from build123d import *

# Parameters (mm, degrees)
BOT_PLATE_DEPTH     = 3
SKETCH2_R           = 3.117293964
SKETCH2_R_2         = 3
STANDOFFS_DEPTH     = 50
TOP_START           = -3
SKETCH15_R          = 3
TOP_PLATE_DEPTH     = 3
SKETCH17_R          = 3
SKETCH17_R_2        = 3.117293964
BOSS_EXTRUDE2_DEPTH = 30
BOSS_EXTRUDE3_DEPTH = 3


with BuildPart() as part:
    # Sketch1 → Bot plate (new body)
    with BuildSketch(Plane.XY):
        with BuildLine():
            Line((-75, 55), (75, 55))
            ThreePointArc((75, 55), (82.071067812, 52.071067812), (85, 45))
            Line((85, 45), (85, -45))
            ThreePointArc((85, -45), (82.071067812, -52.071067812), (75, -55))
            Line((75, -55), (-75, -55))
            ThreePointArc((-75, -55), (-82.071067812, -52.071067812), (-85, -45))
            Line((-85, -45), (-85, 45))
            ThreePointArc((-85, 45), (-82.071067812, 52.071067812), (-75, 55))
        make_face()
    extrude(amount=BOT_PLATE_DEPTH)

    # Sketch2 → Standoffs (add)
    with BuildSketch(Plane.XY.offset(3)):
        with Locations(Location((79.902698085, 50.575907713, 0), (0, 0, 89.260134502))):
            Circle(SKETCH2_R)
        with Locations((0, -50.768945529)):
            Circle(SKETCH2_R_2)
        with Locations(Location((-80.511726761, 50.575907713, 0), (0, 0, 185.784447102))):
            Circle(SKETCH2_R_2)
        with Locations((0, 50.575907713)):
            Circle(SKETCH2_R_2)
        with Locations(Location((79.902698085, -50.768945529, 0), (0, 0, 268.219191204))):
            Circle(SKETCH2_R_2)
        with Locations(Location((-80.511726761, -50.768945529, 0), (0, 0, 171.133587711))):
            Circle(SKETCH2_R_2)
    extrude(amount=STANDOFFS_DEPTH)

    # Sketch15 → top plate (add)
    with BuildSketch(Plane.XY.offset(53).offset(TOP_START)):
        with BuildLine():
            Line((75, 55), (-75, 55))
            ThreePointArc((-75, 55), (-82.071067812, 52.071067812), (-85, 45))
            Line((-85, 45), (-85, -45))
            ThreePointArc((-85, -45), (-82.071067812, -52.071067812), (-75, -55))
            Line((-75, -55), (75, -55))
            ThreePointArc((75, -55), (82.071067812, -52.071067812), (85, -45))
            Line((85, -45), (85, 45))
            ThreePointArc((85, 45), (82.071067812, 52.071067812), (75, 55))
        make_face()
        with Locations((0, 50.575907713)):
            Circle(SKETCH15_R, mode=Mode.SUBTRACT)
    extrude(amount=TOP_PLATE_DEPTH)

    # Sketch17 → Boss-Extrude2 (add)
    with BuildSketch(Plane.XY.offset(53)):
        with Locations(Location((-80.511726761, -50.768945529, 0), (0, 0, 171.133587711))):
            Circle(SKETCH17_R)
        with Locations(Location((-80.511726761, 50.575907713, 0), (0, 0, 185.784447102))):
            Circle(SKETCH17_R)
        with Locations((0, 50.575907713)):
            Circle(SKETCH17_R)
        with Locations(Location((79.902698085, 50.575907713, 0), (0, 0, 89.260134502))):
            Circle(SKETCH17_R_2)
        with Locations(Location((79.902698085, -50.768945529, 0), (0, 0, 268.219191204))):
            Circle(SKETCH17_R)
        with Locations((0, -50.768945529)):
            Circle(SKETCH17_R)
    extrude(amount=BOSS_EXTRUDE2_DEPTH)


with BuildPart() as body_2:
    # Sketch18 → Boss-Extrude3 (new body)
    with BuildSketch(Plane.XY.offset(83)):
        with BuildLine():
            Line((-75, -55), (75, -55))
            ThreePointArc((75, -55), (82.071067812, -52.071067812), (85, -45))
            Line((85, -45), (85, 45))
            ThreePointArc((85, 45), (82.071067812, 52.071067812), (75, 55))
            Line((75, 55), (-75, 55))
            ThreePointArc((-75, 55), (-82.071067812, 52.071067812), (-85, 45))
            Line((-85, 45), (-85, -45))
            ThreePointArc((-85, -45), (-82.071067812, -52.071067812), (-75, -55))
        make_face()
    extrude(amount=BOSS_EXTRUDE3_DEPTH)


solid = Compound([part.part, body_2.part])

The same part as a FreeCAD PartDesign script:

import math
import FreeCAD as App
import Part
import Sketcher

V = App.Vector

doc = App.newDocument("Part")
body = doc.addObject("PartDesign::Body", "Body")

sketch1 = body.newObject("Sketcher::SketchObject", "Sketch")
sketch1.AttachmentSupport = (doc.getObject("XY_Plane"), [""])
sketch1.MapMode = "FlatFace"
sketch1.addGeometry(Part.LineSegment(V(75, 55, 0), V(-75, 55, 0)), False)
sketch1.addGeometry(Part.ArcOfCircle(Part.Circle(V(-75, 45, 0), V(0, 0, 1), 10), math.radians(90), math.radians(180)), False)
sketch1.addGeometry(Part.LineSegment(V(-85, 45, 0), V(-85, -45, 0)), False)
sketch1.addGeometry(Part.ArcOfCircle(Part.Circle(V(-75, -45, 0), V(0, 0, 1), 10), math.radians(180), math.radians(270)), False)
sketch1.addGeometry(Part.LineSegment(V(-75, -55, 0), V(75, -55, 0)), False)
sketch1.addGeometry(Part.ArcOfCircle(Part.Circle(V(75, -45, 0), V(0, 0, 1), 10), math.radians(-90), math.radians(0)), False)
sketch1.addGeometry(Part.LineSegment(V(85, -45, 0), V(85, 45, 0)), False)
sketch1.addGeometry(Part.ArcOfCircle(Part.Circle(V(75, 45, 0), V(0, 0, 1), 10), math.radians(0), math.radians(90)), False)
sketch1.addConstraint(Sketcher.Constraint("Tangent", 0, 2, 1, 1))
sketch1.addConstraint(Sketcher.Constraint("Tangent", 1, 2, 2, 1))
sketch1.addConstraint(Sketcher.Constraint("Tangent", 2, 2, 3, 1))
sketch1.addConstraint(Sketcher.Constraint("Tangent", 3, 2, 4, 1))
sketch1.addConstraint(Sketcher.Constraint("Tangent", 4, 2, 5, 1))
sketch1.addConstraint(Sketcher.Constraint("Tangent", 5, 2, 6, 1))
sketch1.addConstraint(Sketcher.Constraint("Tangent", 6, 2, 7, 1))
sketch1.addConstraint(Sketcher.Constraint("Tangent", 7, 2, 0, 1))
sketch1.addConstraint(Sketcher.Constraint("Horizontal", 0))
sketch1.addConstraint(Sketcher.Constraint("Vertical", 2))
sketch1.addConstraint(Sketcher.Constraint("Horizontal", 4))
sketch1.addConstraint(Sketcher.Constraint("Vertical", 6))
sketch1.addConstraint(Sketcher.Constraint("Equal", 1, 3))
sketch1.addConstraint(Sketcher.Constraint("Equal", 3, 5))
sketch1.addConstraint(Sketcher.Constraint("Equal", 5, 7))
sketch1.addConstraint(Sketcher.Constraint("Symmetric", 1, 3, 5, 3, -1, 1))
sketch1.addConstraint(Sketcher.Constraint("Radius", 1, 10.0))
sketch1.addConstraint(Sketcher.Constraint("DistanceX", 0, 2, 0, 1, 150.0))
sketch1.addConstraint(Sketcher.Constraint("DistanceY", 2, 2, 2, 1, 90.0))
pad1 = body.newObject("PartDesign::Pad", "Pad")
pad1.Profile = sketch1
pad1.Length = 3

sketch2 = body.newObject("Sketcher::SketchObject", "Sketch001")
sketch2.AttachmentSupport = (doc.getObject("XY_Plane"), [""])
sketch2.MapMode = "FlatFace"
sketch2.AttachmentOffset = App.Placement(V(0, 0, 3), App.Rotation())
sketch2.addGeometry(Part.Circle(V(79.9, 50.6, 0), V(0, 0, 1), 3.1), False)
sketch2.addGeometry(Part.Circle(V(0, -50.8, 0), V(0, 0, 1), 3), False)
sketch2.addGeometry(Part.Circle(V(-80.5, 50.6, 0), V(0, 0, 1), 3), False)
sketch2.addGeometry(Part.Circle(V(0, 50.6, 0), V(0, 0, 1), 3), False)
sketch2.addGeometry(Part.Circle(V(79.9, -50.8, 0), V(0, 0, 1), 3), False)
sketch2.addGeometry(Part.Circle(V(-80.5, -50.8, 0), V(0, 0, 1), 3), False)
sketch2.addConstraint(Sketcher.Constraint("Equal", 1, 2))
sketch2.addConstraint(Sketcher.Constraint("Equal", 2, 3))
sketch2.addConstraint(Sketcher.Constraint("Equal", 3, 4))
sketch2.addConstraint(Sketcher.Constraint("Equal", 4, 5))
sketch2.addConstraint(Sketcher.Constraint("PointOnObject", 1, 3, -2))
sketch2.addConstraint(Sketcher.Constraint("PointOnObject", 3, 3, -2))
sketch2.addConstraint(Sketcher.Constraint("Horizontal", 0, 3, 2, 3))
sketch2.addConstraint(Sketcher.Constraint("Horizontal", 2, 3, 3, 3))
sketch2.addConstraint(Sketcher.Constraint("Horizontal", 1, 3, 4, 3))
sketch2.addConstraint(Sketcher.Constraint("Horizontal", 4, 3, 5, 3))
sketch2.addConstraint(Sketcher.Constraint("Vertical", 0, 3, 4, 3))
sketch2.addConstraint(Sketcher.Constraint("Vertical", 2, 3, 5, 3))
sketch2.addConstraint(Sketcher.Constraint("Diameter", 1, 6.0))
sketch2.addConstraint(Sketcher.Constraint("Diameter", 0, 6.234588))
sketch2.addConstraint(Sketcher.Constraint("DistanceX", -1, 1, 0, 3, 79.902698))
sketch2.addConstraint(Sketcher.Constraint("DistanceY", -1, 1, 0, 3, 50.575908))
sketch2.addConstraint(Sketcher.Constraint("DistanceY", 1, 3, -1, 1, 50.768946))
sketch2.addConstraint(Sketcher.Constraint("DistanceX", 2, 3, -1, 1, 80.511727))
pad2 = body.newObject("PartDesign::Pad", "Pad001")
pad2.Profile = sketch2
pad2.Length = 50

sketch3 = body.newObject("Sketcher::SketchObject", "Sketch002")
sketch3.AttachmentSupport = (doc.getObject("XY_Plane"), [""])
sketch3.MapMode = "FlatFace"
sketch3.AttachmentOffset = App.Placement(V(0, 0, 50), App.Rotation())
sketch3.addGeometry(Part.LineSegment(V(75, 55, 0), V(-75, 55, 0)), False)
sketch3.addGeometry(Part.ArcOfCircle(Part.Circle(V(-75, 45, 0), V(0, 0, 1), 10), math.radians(90), math.radians(180)), False)
sketch3.addGeometry(Part.LineSegment(V(-85, 45, 0), V(-85, -45, 0)), False)
sketch3.addGeometry(Part.ArcOfCircle(Part.Circle(V(-75, -45, 0), V(0, 0, 1), 10), math.radians(180), math.radians(270)), False)
sketch3.addGeometry(Part.LineSegment(V(-75, -55, 0), V(75, -55, 0)), False)
sketch3.addGeometry(Part.ArcOfCircle(Part.Circle(V(75, -45, 0), V(0, 0, 1), 10), math.radians(-90), math.radians(0)), False)
sketch3.addGeometry(Part.LineSegment(V(85, -45, 0), V(85, 45, 0)), False)
sketch3.addGeometry(Part.ArcOfCircle(Part.Circle(V(75, 45, 0), V(0, 0, 1), 10), math.radians(0), math.radians(90)), False)
sketch3.addGeometry(Part.Circle(V(0, 50.6, 0), V(0, 0, 1), 3), False)
sketch3.addConstraint(Sketcher.Constraint("Tangent", 0, 2, 1, 1))
sketch3.addConstraint(Sketcher.Constraint("Tangent", 1, 2, 2, 1))
sketch3.addConstraint(Sketcher.Constraint("Tangent", 2, 2, 3, 1))
sketch3.addConstraint(Sketcher.Constraint("Tangent", 3, 2, 4, 1))
sketch3.addConstraint(Sketcher.Constraint("Tangent", 4, 2, 5, 1))
sketch3.addConstraint(Sketcher.Constraint("Tangent", 5, 2, 6, 1))
sketch3.addConstraint(Sketcher.Constraint("Tangent", 6, 2, 7, 1))
sketch3.addConstraint(Sketcher.Constraint("Tangent", 7, 2, 0, 1))
sketch3.addConstraint(Sketcher.Constraint("Horizontal", 0))
sketch3.addConstraint(Sketcher.Constraint("Vertical", 2))
sketch3.addConstraint(Sketcher.Constraint("Horizontal", 4))
sketch3.addConstraint(Sketcher.Constraint("Vertical", 6))
sketch3.addConstraint(Sketcher.Constraint("Equal", 1, 3))
sketch3.addConstraint(Sketcher.Constraint("Equal", 3, 5))
sketch3.addConstraint(Sketcher.Constraint("Equal", 5, 7))
sketch3.addConstraint(Sketcher.Constraint("Symmetric", 1, 3, 5, 3, -1, 1))
sketch3.addConstraint(Sketcher.Constraint("PointOnObject", 8, 3, -2))
sketch3.addConstraint(Sketcher.Constraint("Diameter", 8, 6.0))
sketch3.addConstraint(Sketcher.Constraint("Radius", 1, 10.0))
sketch3.addConstraint(Sketcher.Constraint("DistanceX", 0, 2, 0, 1, 150.0))
sketch3.addConstraint(Sketcher.Constraint("DistanceY", 2, 2, 2, 1, 90.0))
sketch3.addConstraint(Sketcher.Constraint("DistanceY", -1, 1, 8, 3, 50.575908))
pad3 = body.newObject("PartDesign::Pad", "Pad002")
pad3.Profile = sketch3
pad3.Length = 3

sketch4 = body.newObject("Sketcher::SketchObject", "Sketch003")
sketch4.AttachmentSupport = (doc.getObject("XY_Plane"), [""])
sketch4.MapMode = "FlatFace"
sketch4.AttachmentOffset = App.Placement(V(0, 0, 53), App.Rotation())
sketch4.addGeometry(Part.Circle(V(-80.5, -50.8, 0), V(0, 0, 1), 3), False)
sketch4.addGeometry(Part.Circle(V(-80.5, 50.6, 0), V(0, 0, 1), 3), False)
sketch4.addGeometry(Part.Circle(V(0, 50.6, 0), V(0, 0, 1), 3), False)
sketch4.addGeometry(Part.Circle(V(79.9, 50.6, 0), V(0, 0, 1), 3.1), False)
sketch4.addGeometry(Part.Circle(V(79.9, -50.8, 0), V(0, 0, 1), 3), False)
sketch4.addGeometry(Part.Circle(V(0, -50.8, 0), V(0, 0, 1), 3), False)
sketch4.addConstraint(Sketcher.Constraint("Equal", 0, 1))
sketch4.addConstraint(Sketcher.Constraint("Equal", 1, 2))
sketch4.addConstraint(Sketcher.Constraint("Equal", 2, 4))
sketch4.addConstraint(Sketcher.Constraint("Equal", 4, 5))
sketch4.addConstraint(Sketcher.Constraint("PointOnObject", 2, 3, -2))
sketch4.addConstraint(Sketcher.Constraint("PointOnObject", 5, 3, -2))
sketch4.addConstraint(Sketcher.Constraint("Horizontal", 1, 3, 2, 3))
sketch4.addConstraint(Sketcher.Constraint("Horizontal", 2, 3, 3, 3))
sketch4.addConstraint(Sketcher.Constraint("Horizontal", 0, 3, 4, 3))
sketch4.addConstraint(Sketcher.Constraint("Horizontal", 4, 3, 5, 3))
sketch4.addConstraint(Sketcher.Constraint("Vertical", 0, 3, 1, 3))
sketch4.addConstraint(Sketcher.Constraint("Vertical", 3, 3, 4, 3))
sketch4.addConstraint(Sketcher.Constraint("Diameter", 0, 6.0))
sketch4.addConstraint(Sketcher.Constraint("Diameter", 3, 6.234588))
sketch4.addConstraint(Sketcher.Constraint("DistanceX", -1, 1, 3, 3, 79.902698))
sketch4.addConstraint(Sketcher.Constraint("DistanceX", 0, 3, -1, 1, 80.511727))
sketch4.addConstraint(Sketcher.Constraint("DistanceY", 0, 3, -1, 1, 50.768946))
sketch4.addConstraint(Sketcher.Constraint("DistanceY", -1, 1, 1, 3, 50.575908))
pad4 = body.newObject("PartDesign::Pad", "Pad003")
pad4.Profile = sketch4
pad4.Length = 30
body2 = doc.addObject("PartDesign::Body", "Body001")

sketch5 = body2.newObject("Sketcher::SketchObject", "Sketch004")
sketch5.AttachmentSupport = (doc.getObject("XY_Plane001"), [""])
sketch5.MapMode = "FlatFace"
sketch5.AttachmentOffset = App.Placement(V(0, 0, 83), App.Rotation())
sketch5.addGeometry(Part.LineSegment(V(-75, -55, 0), V(75, -55, 0)), False)
sketch5.addGeometry(Part.ArcOfCircle(Part.Circle(V(75, -45, 0), V(0, 0, 1), 10), math.radians(-90), math.radians(0)), False)
sketch5.addGeometry(Part.LineSegment(V(85, -45, 0), V(85, 45, 0)), False)
sketch5.addGeometry(Part.ArcOfCircle(Part.Circle(V(75, 45, 0), V(0, 0, 1), 10), math.radians(0), math.radians(90)), False)
sketch5.addGeometry(Part.LineSegment(V(75, 55, 0), V(-75, 55, 0)), False)
sketch5.addGeometry(Part.ArcOfCircle(Part.Circle(V(-75, 45, 0), V(0, 0, 1), 10), math.radians(90), math.radians(180)), False)
sketch5.addGeometry(Part.LineSegment(V(-85, 45, 0), V(-85, -45, 0)), False)
sketch5.addGeometry(Part.ArcOfCircle(Part.Circle(V(-75, -45, 0), V(0, 0, 1), 10), math.radians(180), math.radians(270)), False)
sketch5.addConstraint(Sketcher.Constraint("Tangent", 0, 2, 1, 1))
sketch5.addConstraint(Sketcher.Constraint("Tangent", 1, 2, 2, 1))
sketch5.addConstraint(Sketcher.Constraint("Tangent", 2, 2, 3, 1))
sketch5.addConstraint(Sketcher.Constraint("Tangent", 3, 2, 4, 1))
sketch5.addConstraint(Sketcher.Constraint("Tangent", 4, 2, 5, 1))
sketch5.addConstraint(Sketcher.Constraint("Tangent", 5, 2, 6, 1))
sketch5.addConstraint(Sketcher.Constraint("Tangent", 6, 2, 7, 1))
sketch5.addConstraint(Sketcher.Constraint("Tangent", 7, 2, 0, 1))
sketch5.addConstraint(Sketcher.Constraint("Horizontal", 0))
sketch5.addConstraint(Sketcher.Constraint("Vertical", 2))
sketch5.addConstraint(Sketcher.Constraint("Horizontal", 4))
sketch5.addConstraint(Sketcher.Constraint("Vertical", 6))
sketch5.addConstraint(Sketcher.Constraint("Equal", 1, 3))
sketch5.addConstraint(Sketcher.Constraint("Equal", 3, 5))
sketch5.addConstraint(Sketcher.Constraint("Equal", 5, 7))
sketch5.addConstraint(Sketcher.Constraint("Symmetric", 1, 3, 5, 3, -1, 1))
sketch5.addConstraint(Sketcher.Constraint("Radius", 1, 10.0))
sketch5.addConstraint(Sketcher.Constraint("DistanceX", 0, 1, 0, 2, 150.0))
sketch5.addConstraint(Sketcher.Constraint("DistanceY", 2, 1, 2, 2, 90.0))
pad5 = body2.newObject("PartDesign::Pad", "Pad004")
pad5.Profile = sketch5
pad5.Length = 3

doc.recompute()
